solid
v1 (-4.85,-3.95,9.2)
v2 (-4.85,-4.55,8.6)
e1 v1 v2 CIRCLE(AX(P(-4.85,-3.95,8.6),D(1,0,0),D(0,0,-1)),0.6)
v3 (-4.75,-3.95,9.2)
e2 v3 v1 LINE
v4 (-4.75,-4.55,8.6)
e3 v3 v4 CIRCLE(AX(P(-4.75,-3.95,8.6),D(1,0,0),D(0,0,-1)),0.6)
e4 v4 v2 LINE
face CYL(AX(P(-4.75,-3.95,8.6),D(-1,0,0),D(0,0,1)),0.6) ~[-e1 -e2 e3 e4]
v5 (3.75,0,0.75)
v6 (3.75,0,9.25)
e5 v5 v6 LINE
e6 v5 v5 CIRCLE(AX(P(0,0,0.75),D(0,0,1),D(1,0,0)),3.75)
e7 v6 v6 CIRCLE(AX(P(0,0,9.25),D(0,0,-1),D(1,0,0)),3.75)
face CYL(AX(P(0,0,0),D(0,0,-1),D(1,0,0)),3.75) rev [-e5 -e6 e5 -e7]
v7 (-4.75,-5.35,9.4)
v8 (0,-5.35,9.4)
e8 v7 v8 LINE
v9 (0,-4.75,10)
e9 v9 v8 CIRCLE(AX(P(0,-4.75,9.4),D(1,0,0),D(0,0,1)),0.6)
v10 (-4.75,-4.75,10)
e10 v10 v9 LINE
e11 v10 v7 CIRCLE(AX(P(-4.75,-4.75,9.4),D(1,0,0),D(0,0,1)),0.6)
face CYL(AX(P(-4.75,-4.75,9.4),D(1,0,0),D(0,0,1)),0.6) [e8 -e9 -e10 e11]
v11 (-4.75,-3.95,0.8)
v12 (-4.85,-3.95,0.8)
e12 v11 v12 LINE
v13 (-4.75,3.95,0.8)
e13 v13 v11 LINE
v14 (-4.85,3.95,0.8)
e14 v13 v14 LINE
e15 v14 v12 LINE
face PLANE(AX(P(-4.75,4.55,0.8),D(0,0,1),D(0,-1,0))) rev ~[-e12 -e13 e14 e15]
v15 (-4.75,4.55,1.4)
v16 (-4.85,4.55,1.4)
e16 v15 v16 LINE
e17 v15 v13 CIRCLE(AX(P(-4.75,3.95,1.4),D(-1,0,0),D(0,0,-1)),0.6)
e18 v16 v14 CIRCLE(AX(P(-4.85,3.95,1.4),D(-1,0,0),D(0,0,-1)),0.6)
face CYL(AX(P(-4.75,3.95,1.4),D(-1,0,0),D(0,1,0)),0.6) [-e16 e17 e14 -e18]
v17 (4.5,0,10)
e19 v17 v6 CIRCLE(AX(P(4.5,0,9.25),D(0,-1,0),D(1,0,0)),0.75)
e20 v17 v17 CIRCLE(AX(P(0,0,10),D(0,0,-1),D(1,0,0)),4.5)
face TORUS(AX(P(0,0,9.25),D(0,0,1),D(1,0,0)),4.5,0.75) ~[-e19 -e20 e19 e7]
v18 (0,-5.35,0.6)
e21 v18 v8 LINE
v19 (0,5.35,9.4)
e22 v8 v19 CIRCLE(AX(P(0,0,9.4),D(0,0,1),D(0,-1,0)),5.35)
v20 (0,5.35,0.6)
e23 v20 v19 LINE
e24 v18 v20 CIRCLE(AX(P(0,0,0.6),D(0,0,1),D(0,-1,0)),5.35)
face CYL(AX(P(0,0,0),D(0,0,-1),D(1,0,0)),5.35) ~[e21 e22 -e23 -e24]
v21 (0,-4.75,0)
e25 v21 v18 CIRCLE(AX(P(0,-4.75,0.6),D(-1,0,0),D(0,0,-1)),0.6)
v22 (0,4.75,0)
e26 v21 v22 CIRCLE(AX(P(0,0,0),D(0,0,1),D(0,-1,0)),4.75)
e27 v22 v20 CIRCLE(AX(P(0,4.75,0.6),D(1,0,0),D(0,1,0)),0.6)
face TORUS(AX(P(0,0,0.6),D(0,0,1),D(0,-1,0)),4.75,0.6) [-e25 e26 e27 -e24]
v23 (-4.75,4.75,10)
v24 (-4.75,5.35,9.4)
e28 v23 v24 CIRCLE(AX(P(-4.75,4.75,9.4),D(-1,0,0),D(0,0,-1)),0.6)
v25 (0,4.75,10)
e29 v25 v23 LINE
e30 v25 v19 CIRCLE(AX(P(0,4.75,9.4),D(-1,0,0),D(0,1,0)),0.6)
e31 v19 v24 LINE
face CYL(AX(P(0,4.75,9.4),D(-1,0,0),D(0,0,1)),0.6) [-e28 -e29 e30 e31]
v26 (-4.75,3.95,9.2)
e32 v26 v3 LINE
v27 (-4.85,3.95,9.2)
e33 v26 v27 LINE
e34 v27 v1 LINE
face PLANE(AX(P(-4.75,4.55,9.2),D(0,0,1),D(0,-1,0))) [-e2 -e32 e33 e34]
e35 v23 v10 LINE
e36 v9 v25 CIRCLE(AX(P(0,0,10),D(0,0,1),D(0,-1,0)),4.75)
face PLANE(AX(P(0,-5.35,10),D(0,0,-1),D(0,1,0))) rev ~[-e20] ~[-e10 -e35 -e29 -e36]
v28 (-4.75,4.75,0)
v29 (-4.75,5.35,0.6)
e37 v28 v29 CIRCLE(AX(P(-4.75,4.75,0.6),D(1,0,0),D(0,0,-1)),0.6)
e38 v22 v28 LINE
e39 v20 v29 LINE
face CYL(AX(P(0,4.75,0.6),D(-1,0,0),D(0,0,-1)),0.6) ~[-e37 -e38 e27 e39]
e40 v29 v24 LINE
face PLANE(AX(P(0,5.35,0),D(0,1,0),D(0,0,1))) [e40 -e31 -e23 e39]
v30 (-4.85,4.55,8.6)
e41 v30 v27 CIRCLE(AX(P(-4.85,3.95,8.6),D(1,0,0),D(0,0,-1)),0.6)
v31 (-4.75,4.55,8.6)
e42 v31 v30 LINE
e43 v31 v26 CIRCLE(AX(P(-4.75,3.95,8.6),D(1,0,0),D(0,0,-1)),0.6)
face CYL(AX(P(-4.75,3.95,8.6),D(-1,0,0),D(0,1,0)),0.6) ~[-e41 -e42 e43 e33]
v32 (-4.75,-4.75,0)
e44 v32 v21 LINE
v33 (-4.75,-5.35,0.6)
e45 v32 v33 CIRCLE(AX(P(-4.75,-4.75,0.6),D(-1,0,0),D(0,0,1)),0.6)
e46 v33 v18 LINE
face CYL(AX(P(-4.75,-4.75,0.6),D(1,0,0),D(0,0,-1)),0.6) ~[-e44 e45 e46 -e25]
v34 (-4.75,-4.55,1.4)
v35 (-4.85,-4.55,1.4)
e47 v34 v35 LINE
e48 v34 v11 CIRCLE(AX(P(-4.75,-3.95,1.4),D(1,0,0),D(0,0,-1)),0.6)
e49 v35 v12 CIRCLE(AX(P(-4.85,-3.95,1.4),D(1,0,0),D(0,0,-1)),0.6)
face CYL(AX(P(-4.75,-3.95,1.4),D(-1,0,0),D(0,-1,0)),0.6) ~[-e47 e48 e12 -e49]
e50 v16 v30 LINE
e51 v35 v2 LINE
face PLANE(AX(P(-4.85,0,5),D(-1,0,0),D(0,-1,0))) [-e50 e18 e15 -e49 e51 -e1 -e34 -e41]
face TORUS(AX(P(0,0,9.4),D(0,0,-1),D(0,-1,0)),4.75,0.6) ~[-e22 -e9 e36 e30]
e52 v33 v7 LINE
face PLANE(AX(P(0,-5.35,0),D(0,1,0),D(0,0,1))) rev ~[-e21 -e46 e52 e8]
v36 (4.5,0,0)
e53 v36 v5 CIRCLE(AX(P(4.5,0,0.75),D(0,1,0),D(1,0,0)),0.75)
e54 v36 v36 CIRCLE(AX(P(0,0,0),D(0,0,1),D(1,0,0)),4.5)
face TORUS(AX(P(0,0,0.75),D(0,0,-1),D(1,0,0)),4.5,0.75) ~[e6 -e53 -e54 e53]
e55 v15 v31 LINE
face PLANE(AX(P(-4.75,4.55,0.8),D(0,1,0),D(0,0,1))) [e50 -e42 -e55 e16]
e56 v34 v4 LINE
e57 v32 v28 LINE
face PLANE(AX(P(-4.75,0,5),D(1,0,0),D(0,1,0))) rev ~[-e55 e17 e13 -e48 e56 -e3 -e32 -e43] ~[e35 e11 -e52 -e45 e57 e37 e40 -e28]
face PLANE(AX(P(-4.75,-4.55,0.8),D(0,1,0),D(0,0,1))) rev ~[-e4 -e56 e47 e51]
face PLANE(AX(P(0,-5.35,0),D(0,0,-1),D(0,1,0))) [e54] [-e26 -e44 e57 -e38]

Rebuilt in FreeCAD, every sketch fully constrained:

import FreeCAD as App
import Part
import Sketcher
Q = App.Units.Quantity


def edges_at(feature, points):
    """Names of the edges that pass closest to the given points."""
    edges = feature.Shape.Edges
    near = lambda p: min(range(len(edges)), key=lambda i: edges[i].distToShape(Part.Vertex(*p))[0])
    return sorted({f"Edge{near(p) + 1}" for p in points})


def add_polygon(sketch, points):
    """Adds a closed chain of lines whose ends are joined by coincident constraints."""
    first, n = sketch.GeometryCount, len(points)
    for a, b in zip(points, points[1:] + points[:1]):
        sketch.addGeometry(Part.LineSegment(App.Vector(*a, 0), App.Vector(*b, 0)), False)
    for i in range(n):
        sketch.addConstraint(Sketcher.Constraint("Coincident", first + i, 2, first + (i + 1) % n, 1))

doc = App.newDocument("Part")
body = doc.addObject("PartDesign::Body", "Body")

# Sketch on XY plane
sketch1 = body.newObject("Sketcher::SketchObject", "Sketch")
sketch1.AttachmentSupport = (doc.getObject("XY_Plane"), [""])
sketch1.MapMode = "FlatFace"
sketch1.addGeometry(Part.Circle(App.Vector(0, 0, 0), App.Vector(0, 0, 1), 5), False)
sketch1.addConstraint(Sketcher.Constraint("Coincident", 0, 3, -1, 1))
sketch1.addConstraint(Sketcher.Constraint("Diameter", 0, Q("10.7 mm")))
pad1 = body.newObject("PartDesign::Pad", "Pad")
pad1.Profile = sketch1
pad1.Length = 10

# Sketch on YZ plane
sketch2 = body.newObject("Sketcher::SketchObject", "Sketch001")
sketch2.AttachmentSupport = (doc.getObject("YZ_Plane"), [""])
sketch2.MapMode = "FlatFace"
add_polygon(sketch2, [(-5, 10), (-5, 0), (5, 0), (5, 10)])  # lines 0-3
sketch2.addConstraint(Sketcher.Constraint("Vertical", 0))
sketch2.addConstraint(Sketcher.Constraint("Horizontal", 1))
sketch2.addConstraint(Sketcher.Constraint("Vertical", 2))
sketch2.addConstraint(Sketcher.Constraint("Horizontal", 3))
sketch2.addConstraint(Sketcher.Constraint("Symmetric", 0, 2, 1, 2, -1, 1))
sketch2.addConstraint(Sketcher.Constraint("DistanceY", 0, 2, 0, 1, Q("10 mm")))
sketch2.addConstraint(Sketcher.Constraint("DistanceX", 1, 1, 1, 2, Q("10.7 mm")))
pad2 = body.newObject("PartDesign::Pad", "Pad001")
pad2.Profile = sketch2
pad2.Length = 4.75
pad2.Reversed = True

# Sketch on YZ plane
sketch3 = body.newObject("Sketcher::SketchObject", "Sketch002")
sketch3.AttachmentSupport = (doc.getObject("YZ_Plane"), [""])
sketch3.MapMode = "FlatFace"
sketch3.AttachmentOffset = App.Placement(App.Vector(0, 0, -4.75), App.Rotation())
add_polygon(sketch3, [(2, 10), (2, 0), (-5, 0), (-5, 10)])  # lines 0-3
sketch3.addConstraint(Sketcher.Constraint("Vertical", 0))
sketch3.addConstraint(Sketcher.Constraint("Horizontal", 1))
sketch3.addConstraint(Sketcher.Constraint("Vertical", 2))
sketch3.addConstraint(Sketcher.Constraint("Horizontal", 3))
sketch3.addConstraint(Sketcher.Constraint("PointOnObject", 0, 2, -1))
sketch3.addConstraint(Sketcher.Constraint("DistanceY", 0, 2, 0, 1, Q("10 mm")))
sketch3.addConstraint(Sketcher.Constraint("DistanceX", 1, 2, -1, 1, Q("5.35 mm")))
sketch3.addConstraint(Sketcher.Constraint("DistanceX", 1, 2, 1, 1, Q("7.811707 mm")))
pocket1 = body.newObject("PartDesign::Pocket", "Pocket")
pocket1.Profile = sketch3
pocket1.Length = 25

# Sketch on XY plane
sketch4 = body.newObject("Sketcher::SketchObject", "Sketch003")
sketch4.AttachmentSupport = (doc.getObject("XY_Plane"), [""])
sketch4.MapMode = "FlatFace"
sketch4.addGeometry(Part.Circle(App.Vector(0, 0, 0), App.Vector(0, 0, 1), 3.8), False)
sketch4.addConstraint(Sketcher.Constraint("Coincident", 0, 3, -1, 1))
sketch4.addConstraint(Sketcher.Constraint("Diameter", 0, Q("7.5 mm")))
pocket2 = body.newObject("PartDesign::Pocket", "Pocket001")
pocket2.Profile = sketch4
pocket2.Length = 25
pocket2.Reversed = True

# Sketch on YZ plane
sketch5 = body.newObject("Sketcher::SketchObject", "Sketch004")
sketch5.AttachmentSupport = (doc.getObject("YZ_Plane"), [""])
sketch5.MapMode = "FlatFace"
sketch5.AttachmentOffset = App.Placement(App.Vector(0, 0, -4.75), App.Rotation())
add_polygon(sketch5, [(5, 9), (5, 1), (-5, 1), (-5, 9)])  # lines 0-3
sketch5.addConstraint(Sketcher.Constraint("Vertical", 0))
sketch5.addConstraint(Sketcher.Constraint("Horizontal", 1))
sketch5.addConstraint(Sketcher.Constraint("Vertical", 2))
sketch5.addConstraint(Sketcher.Constraint("Horizontal", 3))
sketch5.addConstraint(Sketcher.Constraint("DistanceX", 1, 2, 1, 1, Q("9.1 mm")))
sketch5.addConstraint(Sketcher.Constraint("DistanceY", 0, 2, 0, 1, Q("8.4 mm")))
sketch5.addConstraint(Sketcher.Constraint("DistanceY", -1, 1, 0, 2, Q("0.8 mm")))
sketch5.addConstraint(Sketcher.Constraint("DistanceX", -1, 1, 0, 2, Q("4.55 mm")))
pad3 = body.newObject("PartDesign::Pad", "Pad002")
pad3.Profile = sketch5
pad3.Length = 0.1
pad3.Reversed = True
doc.recompute()

fillet = body.newObject("PartDesign::Fillet", "Fillet")
fillet.Base = (pad3, edges_at(pad3, [
    (-2.375, 5.35, 10),
    (-2.375, 5.35, 0),
    (-2.375, -5.35, 0),
    (-2.375, -5.35, 10),
    (-4.8, 4.55, 9.2),
    (-4.8, -4.55, 9.2),
    (-4.8, -4.55, 0.8),
    (-4.8, 4.55, 0.8),
]))
fillet.Radius = 0.6
doc.recompute()

fillet2 = body.newObject("PartDesign::Fillet", "Fillet001")
fillet2.Base = (fillet, edges_at(fillet, [(-3.75, 0, 0), (-3.75, 0, 10)]))
fillet2.Radius = 0.75

doc.recompute()
